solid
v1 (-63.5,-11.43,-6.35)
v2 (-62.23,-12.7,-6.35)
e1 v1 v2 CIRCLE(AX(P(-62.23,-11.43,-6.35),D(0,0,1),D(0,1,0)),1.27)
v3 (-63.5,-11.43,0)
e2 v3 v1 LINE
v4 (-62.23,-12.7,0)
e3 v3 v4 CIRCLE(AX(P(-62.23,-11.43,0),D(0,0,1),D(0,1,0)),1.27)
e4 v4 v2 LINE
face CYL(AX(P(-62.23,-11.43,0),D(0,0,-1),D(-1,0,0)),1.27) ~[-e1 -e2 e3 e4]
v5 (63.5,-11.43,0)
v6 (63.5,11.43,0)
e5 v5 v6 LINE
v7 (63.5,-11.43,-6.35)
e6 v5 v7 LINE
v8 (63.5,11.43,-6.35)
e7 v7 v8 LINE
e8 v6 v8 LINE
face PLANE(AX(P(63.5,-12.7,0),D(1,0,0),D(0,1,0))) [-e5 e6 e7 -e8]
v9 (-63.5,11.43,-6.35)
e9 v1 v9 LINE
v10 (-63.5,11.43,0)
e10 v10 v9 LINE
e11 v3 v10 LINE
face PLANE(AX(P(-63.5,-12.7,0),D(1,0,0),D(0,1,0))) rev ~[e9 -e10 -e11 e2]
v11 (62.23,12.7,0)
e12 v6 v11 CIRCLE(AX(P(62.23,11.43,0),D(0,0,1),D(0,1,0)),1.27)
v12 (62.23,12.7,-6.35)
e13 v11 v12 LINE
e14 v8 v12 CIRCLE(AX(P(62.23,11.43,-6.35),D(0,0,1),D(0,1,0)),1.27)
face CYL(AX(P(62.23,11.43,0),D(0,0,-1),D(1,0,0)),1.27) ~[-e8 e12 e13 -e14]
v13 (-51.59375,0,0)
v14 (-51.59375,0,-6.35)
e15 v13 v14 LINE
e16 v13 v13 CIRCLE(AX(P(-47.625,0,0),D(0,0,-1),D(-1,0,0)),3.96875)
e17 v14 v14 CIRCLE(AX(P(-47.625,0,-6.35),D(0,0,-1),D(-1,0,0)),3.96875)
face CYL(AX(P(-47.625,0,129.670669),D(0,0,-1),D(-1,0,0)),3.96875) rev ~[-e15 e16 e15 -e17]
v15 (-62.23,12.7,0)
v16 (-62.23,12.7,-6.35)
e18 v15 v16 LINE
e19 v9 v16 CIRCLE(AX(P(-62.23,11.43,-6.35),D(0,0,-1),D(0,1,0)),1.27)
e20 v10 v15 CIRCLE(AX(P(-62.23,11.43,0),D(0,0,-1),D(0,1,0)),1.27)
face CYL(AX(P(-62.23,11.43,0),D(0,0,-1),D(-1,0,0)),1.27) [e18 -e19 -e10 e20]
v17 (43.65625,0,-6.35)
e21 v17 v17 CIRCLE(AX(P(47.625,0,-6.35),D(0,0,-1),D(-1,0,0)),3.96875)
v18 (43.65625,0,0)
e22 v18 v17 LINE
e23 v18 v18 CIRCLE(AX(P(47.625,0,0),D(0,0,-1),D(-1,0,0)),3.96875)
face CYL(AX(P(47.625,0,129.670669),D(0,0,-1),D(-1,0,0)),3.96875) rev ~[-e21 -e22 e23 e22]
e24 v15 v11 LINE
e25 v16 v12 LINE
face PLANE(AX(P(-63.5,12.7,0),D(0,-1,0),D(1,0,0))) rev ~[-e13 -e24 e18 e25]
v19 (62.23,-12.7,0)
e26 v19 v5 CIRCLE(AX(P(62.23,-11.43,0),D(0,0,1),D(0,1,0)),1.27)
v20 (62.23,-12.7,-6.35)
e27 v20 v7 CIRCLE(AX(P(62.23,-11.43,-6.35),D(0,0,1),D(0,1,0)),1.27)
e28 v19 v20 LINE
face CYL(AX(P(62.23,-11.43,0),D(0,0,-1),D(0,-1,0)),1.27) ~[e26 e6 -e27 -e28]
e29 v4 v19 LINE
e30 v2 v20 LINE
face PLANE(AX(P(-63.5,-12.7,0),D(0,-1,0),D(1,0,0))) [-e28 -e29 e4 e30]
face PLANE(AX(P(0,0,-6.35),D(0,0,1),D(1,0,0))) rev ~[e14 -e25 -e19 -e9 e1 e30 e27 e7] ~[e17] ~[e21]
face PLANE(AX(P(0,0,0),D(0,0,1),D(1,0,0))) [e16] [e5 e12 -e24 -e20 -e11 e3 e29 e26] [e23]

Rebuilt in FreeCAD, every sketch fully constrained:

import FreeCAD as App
import Part
import Sketcher
Q = App.Units.Quantity


def edges_at(feature, points):
    """Names of the edges that pass closest to the given points."""
    edges = feature.Shape.Edges
    near = lambda p: min(range(len(edges)), key=lambda i: edges[i].distToShape(Part.Vertex(*p))[0])
    return sorted({f"Edge{near(p) + 1}" for p in points})


def add_polygon(sketch, points):
    """Adds a closed chain of lines whose ends are joined by coincident constraints."""
    first, n = sketch.GeometryCount, len(points)
    for a, b in zip(points, points[1:] + points[:1]):
        sketch.addGeometry(Part.LineSegment(App.Vector(*a, 0), App.Vector(*b, 0)), False)
    for i in range(n):
        sketch.addConstraint(Sketcher.Constraint("Coincident", first + i, 2, first + (i + 1) % n, 1))

doc = App.newDocument("Part")
params = doc.addObject("Spreadsheet::Sheet", "Params")
for row, (alias, value) in enumerate([
    ("sketch1_width", "5 in"),
    ("sketch1_height", "1 in"),
    ("pad1_length", "0.25 in"),
    ("fillet_radius", "0.05 in"),
    ("sketch2_diameter", "0.3125 in"),
    ("hole_diameter", "0.3125 in"),
], start=1):
    params.set(f"A{row}", alias)
    params.set(f"B{row}", "=" + value)
    params.setAlias(f"B{row}", alias)

body = doc.addObject("PartDesign::Body", "Body")

sketch1 = doc.addObject("Sketcher::SketchObject", "Sketch")
body.addObject(sketch1)
sketch1.AttachmentSupport = (doc.XY_Plane, [""])
sketch1.MapMode = "FlatFace"
add_polygon(sketch1, [(-64, 13), (-64, -13), (64, -13), (64, 13)])
sketch1.addConstraint(Sketcher.Constraint("Vertical", 0))
sketch1.addConstraint(Sketcher.Constraint("Horizontal", 1))
sketch1.addConstraint(Sketcher.Constraint("Vertical", 2))
sketch1.addConstraint(Sketcher.Constraint("Horizontal", 3))
sketch1.addConstraint(Sketcher.Constraint("Symmetric", 0, 2, 2, 2, -1, 1))
sketch1.addConstraint(Sketcher.Constraint("DistanceX", 1, 1, 1, 2, Q("5 in")))
sketch1.addConstraint(Sketcher.Constraint("DistanceY", 0, 2, 0, 1, Q("1 in")))
sketch1.setExpression("Constraints[9]", "Params.sketch1_width")
sketch1.setExpression("Constraints[10]", "Params.sketch1_height")
pad1 = doc.addObject("PartDesign::Pad", "Pad")
body.addObject(pad1)
pad1.Profile = sketch1
pad1.setExpression("Length", "Params.pad1_length")
pad1.Reversed = True
doc.recompute()

fillet = doc.addObject("PartDesign::Fillet", "Fillet")
body.addObject(fillet)
fillet.Base = (pad1, edges_at(pad1, [
    (-63.5, -12.7, -3.175),
    (-63.5, 12.7, -3.175),
    (63.5, 12.7, -3.175),
    (63.5, -12.7, -3.175),
]))
fillet.setExpression("Radius", "Params.fillet_radius")

sketch2 = doc.addObject("Sketcher::SketchObject", "Sketch001")
body.addObject(sketch2)
sketch2.AttachmentSupport = (doc.XY_Plane, [""])
sketch2.MapMode = "FlatFace"
sketch2.addGeometry(Part.Circle(App.Vector(-47.6, 0, 0), App.Vector(0, 0, 1), 4), False)
sketch2.addGeometry(Part.Circle(App.Vector(47.6, 0, 0), App.Vector(0, 0, 1), 4), False)
sketch2.addConstraint(Sketcher.Constraint("Equal", 0, 1))
sketch2.addConstraint(Sketcher.Constraint("Symmetric", 0, 3, 1, 3, -1, 1))
sketch2.addConstraint(Sketcher.Constraint("PointOnObject", 0, 3, -1))
sketch2.addConstraint(Sketcher.Constraint("Diameter", 0, Q("0.3125 in")))
sketch2.addConstraint(Sketcher.Constraint("DistanceX", 0, 3, 1, 3, Q("3.75 in")))
sketch2.setExpression("Constraints[3]", "Params.sketch2_diameter")
doc.recompute()
hole = doc.addObject("PartDesign::Hole", "Hole")
body.addObject(hole)
hole.Profile = sketch2
hole.ThreadType = "None"
hole.setExpression("Diameter", "Params.hole_diameter")
hole.DepthType = "ThroughAll"

doc.recompute()
